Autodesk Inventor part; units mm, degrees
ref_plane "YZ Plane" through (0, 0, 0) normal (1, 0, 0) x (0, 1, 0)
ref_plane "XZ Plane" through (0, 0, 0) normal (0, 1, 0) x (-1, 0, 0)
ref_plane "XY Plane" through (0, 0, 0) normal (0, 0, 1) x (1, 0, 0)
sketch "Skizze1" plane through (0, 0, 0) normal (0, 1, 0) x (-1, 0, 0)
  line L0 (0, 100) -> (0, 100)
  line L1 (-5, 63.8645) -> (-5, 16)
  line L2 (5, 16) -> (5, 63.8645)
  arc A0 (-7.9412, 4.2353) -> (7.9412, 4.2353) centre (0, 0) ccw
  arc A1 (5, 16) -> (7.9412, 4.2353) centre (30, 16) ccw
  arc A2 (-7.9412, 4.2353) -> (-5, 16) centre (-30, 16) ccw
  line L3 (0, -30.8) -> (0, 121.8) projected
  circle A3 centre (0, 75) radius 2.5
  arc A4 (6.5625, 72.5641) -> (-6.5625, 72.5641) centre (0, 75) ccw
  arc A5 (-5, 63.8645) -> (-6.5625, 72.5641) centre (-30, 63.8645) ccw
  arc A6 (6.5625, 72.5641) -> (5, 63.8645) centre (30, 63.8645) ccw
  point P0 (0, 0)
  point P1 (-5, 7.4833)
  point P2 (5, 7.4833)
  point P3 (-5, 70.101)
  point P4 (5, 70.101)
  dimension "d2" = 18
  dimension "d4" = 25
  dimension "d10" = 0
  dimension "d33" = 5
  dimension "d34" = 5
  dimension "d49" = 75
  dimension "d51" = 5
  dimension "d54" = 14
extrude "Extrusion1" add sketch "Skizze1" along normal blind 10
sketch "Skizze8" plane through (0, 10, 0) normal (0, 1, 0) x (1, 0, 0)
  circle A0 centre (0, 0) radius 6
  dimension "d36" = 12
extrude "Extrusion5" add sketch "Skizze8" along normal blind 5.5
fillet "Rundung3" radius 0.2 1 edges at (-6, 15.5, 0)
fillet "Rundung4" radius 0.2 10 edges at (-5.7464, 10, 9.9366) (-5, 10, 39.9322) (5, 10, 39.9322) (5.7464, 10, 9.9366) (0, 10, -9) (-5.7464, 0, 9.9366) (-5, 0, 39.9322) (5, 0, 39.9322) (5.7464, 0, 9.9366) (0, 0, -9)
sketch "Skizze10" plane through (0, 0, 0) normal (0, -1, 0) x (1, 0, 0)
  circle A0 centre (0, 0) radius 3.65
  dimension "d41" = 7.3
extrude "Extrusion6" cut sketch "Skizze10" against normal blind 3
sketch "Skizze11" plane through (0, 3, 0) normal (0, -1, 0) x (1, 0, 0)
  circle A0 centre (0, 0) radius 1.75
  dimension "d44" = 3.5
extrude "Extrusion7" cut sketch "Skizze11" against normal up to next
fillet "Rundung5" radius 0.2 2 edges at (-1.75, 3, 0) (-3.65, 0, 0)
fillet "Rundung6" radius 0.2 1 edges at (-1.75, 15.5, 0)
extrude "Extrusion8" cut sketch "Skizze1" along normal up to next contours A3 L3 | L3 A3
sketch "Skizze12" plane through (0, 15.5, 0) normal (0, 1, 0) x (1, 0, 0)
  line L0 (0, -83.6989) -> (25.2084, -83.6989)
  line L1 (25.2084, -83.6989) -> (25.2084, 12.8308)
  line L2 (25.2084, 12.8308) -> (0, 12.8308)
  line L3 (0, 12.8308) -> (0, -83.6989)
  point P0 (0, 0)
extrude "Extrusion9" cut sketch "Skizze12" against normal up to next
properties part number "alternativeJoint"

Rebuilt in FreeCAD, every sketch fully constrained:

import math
import FreeCAD as App
import Part
import Sketcher


def edges_at(feature, points):
    """Names of the edges that pass closest to the given points."""
    edges = feature.Shape.Edges
    near = lambda p: min(range(len(edges)), key=lambda i: edges[i].distToShape(Part.Vertex(*p))[0])
    return sorted({f"Edge{near(p) + 1}" for p in points})

doc = App.newDocument("Part")
body = doc.addObject("PartDesign::Body", "Body")

# Sketch on XZ plane
sketch1 = body.newObject("Sketcher::SketchObject", "Sketch")
sketch1.AttachmentSupport = (doc.getObject("XZ_Plane"), [""])
sketch1.MapMode = "FlatFace"
sketch1.addGeometry(Part.ArcOfCircle(Part.Circle(App.Vector(30, 64, 0), App.Vector(0, 0, 1), 25), math.radians(160), math.radians(180)), False)
sketch1.addGeometry(Part.LineSegment(App.Vector(5, 64, 0), App.Vector(5, 16, 0)), False)
sketch1.addGeometry(Part.ArcOfCircle(Part.Circle(App.Vector(30, 16, 0), App.Vector(0, 0, 1), 25), math.radians(180), math.radians(208)), False)
sketch1.addGeometry(Part.ArcOfCircle(Part.Circle(App.Vector(0, 0, 0), App.Vector(0, 0, 1), 9), math.radians(152), math.radians(388)), False)
sketch1.addGeometry(Part.ArcOfCircle(Part.Circle(App.Vector(-30, 16, 0), App.Vector(0, 0, 1), 25), math.radians(-28), math.radians(0)), False)
sketch1.addGeometry(Part.LineSegment(App.Vector(-5, 16, 0), App.Vector(-5, 64, 0)), False)
sketch1.addGeometry(Part.ArcOfCircle(Part.Circle(App.Vector(-30, 64, 0), App.Vector(0, 0, 1), 25), math.radians(0), math.radians(20)), False)
sketch1.addGeometry(Part.ArcOfCircle(Part.Circle(App.Vector(0, 75, 0), App.Vector(0, 0, 1), 7), math.radians(-20), math.radians(200)), False)
sketch1.addConstraint(Sketcher.Constraint("Tangent", 0, 2, 1, 1))
sketch1.addConstraint(Sketcher.Constraint("Tangent", 1, 2, 2, 1))
sketch1.addConstraint(Sketcher.Constraint("Tangent", 2, 2, 3, 2))
sketch1.addConstraint(Sketcher.Constraint("Tangent", 3, 1, 4, 1))
sketch1.addConstraint(Sketcher.Constraint("Tangent", 4, 2, 5, 1))
sketch1.addConstraint(Sketcher.Constraint("Tangent", 5, 2, 6, 1))
sketch1.addConstraint(Sketcher.Constraint("Tangent", 6, 2, 7, 2))
sketch1.addConstraint(Sketcher.Constraint("Tangent", 7, 1, 0, 1))
sketch1.addConstraint(Sketcher.Constraint("Vertical", 1))
sketch1.addConstraint(Sketcher.Constraint("Vertical", 5))
sketch1.addConstraint(Sketcher.Constraint("Coincident", 3, 3, -1, 1))
sketch1.addConstraint(Sketcher.Constraint("Equal", 0, 2))
sketch1.addConstraint(Sketcher.Constraint("Equal", 2, 4))
sketch1.addConstraint(Sketcher.Constraint("Equal", 4, 6))
sketch1.addConstraint(Sketcher.Constraint("Symmetric", 0, 3, 6, 3, -2))
sketch1.addConstraint(Sketcher.Constraint("Radius", 0, 25.0))
sketch1.addConstraint(Sketcher.Constraint("Radius", 3, 9.0))
sketch1.addConstraint(Sketcher.Constraint("Radius", 7, 7.0))
sketch1.addConstraint(Sketcher.Constraint("DistanceY", -1, 1, 7, 3, 75.0))
sketch1.addConstraint(Sketcher.Constraint("DistanceX", -1, 1, 0, 2, 5.0))
pad1 = body.newObject("PartDesign::Pad", "Pad")
pad1.Profile = sketch1
pad1.Length = 10
pad1.Reversed = True

# Sketch on XZ plane
sketch2 = body.newObject("Sketcher::SketchObject", "Sketch001")
sketch2.AttachmentSupport = (doc.getObject("XZ_Plane"), [""])
sketch2.MapMode = "FlatFace"
sketch2.AttachmentOffset = App.Placement(App.Vector(0, 0, -10), App.Rotation())
sketch2.addGeometry(Part.Circle(App.Vector(0, 0, 0), App.Vector(0, 0, 1), 6), False)
sketch2.addConstraint(Sketcher.Constraint("Coincident", 0, 3, -1, 1))
sketch2.addConstraint(Sketcher.Constraint("Diameter", 0, 12.0))
pad2 = body.newObject("PartDesign::Pad", "Pad001")
pad2.Profile = sketch2
pad2.Length = 5.5
pad2.Reversed = True
doc.recompute()

fillet = body.newObject("PartDesign::Fillet", "Fillet")
fillet.Base = (pad2, edges_at(pad2, [(-6, 15.5, 0)]))
fillet.Radius = 0.2
doc.recompute()

fillet2 = body.newObject("PartDesign::Fillet", "Fillet001")
fillet2.Base = (fillet, edges_at(fillet, [
    (-5.746, 10, 9.937),
    (-5, 10, 39.932),
    (5, 10, 39.932),
    (5.746, 10, 9.937),
    (0, 10, -9),
    (-5.746, 0, 9.937),
    (-5, 0, 39.932),
    (5, 0, 39.932),
    (5.746, 0, 9.937),
    (0, 0, -9),
]))
fillet2.Radius = 0.2

# Sketch on XZ plane
sketch3 = body.newObject("Sketcher::SketchObject", "Sketch002")
sketch3.AttachmentSupport = (doc.getObject("XZ_Plane"), [""])
sketch3.MapMode = "FlatFace"
sketch3.addGeometry(Part.Circle(App.Vector(0, 0, 0), App.Vector(0, 0, 1), 3.6), False)
sketch3.addConstraint(Sketcher.Constraint("Coincident", 0, 3, -1, 1))
sketch3.addConstraint(Sketcher.Constraint("Diameter", 0, 7.3))
pocket1 = body.newObject("PartDesign::Pocket", "Pocket")
pocket1.Profile = sketch3
pocket1.Length = 3

# Sketch on XZ plane
sketch4 = body.newObject("Sketcher::SketchObject", "Sketch003")
sketch4.AttachmentSupport = (doc.getObject("XZ_Plane"), [""])
sketch4.MapMode = "FlatFace"
sketch4.AttachmentOffset = App.Placement(App.Vector(0, 0, -3), App.Rotation())
sketch4.addGeometry(Part.Circle(App.Vector(0, 0, 0), App.Vector(0, 0, 1), 1.8), False)
sketch4.addConstraint(Sketcher.Constraint("Coincident", 0, 3, -1, 1))
sketch4.addConstraint(Sketcher.Constraint("Diameter", 0, 3.5))
pocket2 = body.newObject("PartDesign::Pocket", "Pocket001")
pocket2.Profile = sketch4
pocket2.Type = "UpToFirst"
doc.recompute()

fillet3 = body.newObject("PartDesign::Fillet", "Fillet002")
fillet3.Base = (pocket2, edges_at(pocket2, [(-1.75, 3, 0), (-3.65, 0, 0)]))
fillet3.Radius = 0.2
doc.recompute()

fillet4 = body.newObject("PartDesign::Fillet", "Fillet003")
fillet4.Base = (fillet3, edges_at(fillet3, [(-1.75, 15.5, 0)]))
fillet4.Radius = 0.2

# Sketch on XZ plane
sketch5 = body.newObject("Sketcher::SketchObject", "Sketch004")
sketch5.AttachmentSupport = (doc.getObject("XZ_Plane"), [""])
sketch5.MapMode = "FlatFace"
sketch5.addGeometry(Part.Circle(App.Vector(0, 75, 0), App.Vector(0, 0, 1), 2.5), False)
sketch5.addConstraint(Sketcher.Constraint("PointOnObject", 0, 3, -2))
sketch5.addConstraint(Sketcher.Constraint("Diameter", 0, 5.0))
sketch5.addConstraint(Sketcher.Constraint("DistanceY", -1, 1, 0, 3, 75.0))
pocket3 = body.newObject("PartDesign::Pocket", "Pocket002")
pocket3.Profile = sketch5
pocket3.Type = "UpToFirst"

# Sketch on XZ plane
sketch6 = body.newObject("Sketcher::SketchObject", "Sketch005")
sketch6.AttachmentSupport = (doc.getObject("XZ_Plane"), [""])
sketch6.MapMode = "FlatFace"
sketch6.AttachmentOffset = App.Placement(App.Vector(0, 0, -15.5), App.Rotation())
sketch6.addGeometry(Part.LineSegment(App.Vector(0, -13, 0), App.Vector(0, 84, 0)), False)
sketch6.addGeometry(Part.LineSegment(App.Vector(0, 84, 0), App.Vector(25, 84, 0)), False)
sketch6.addGeometry(Part.LineSegment(App.Vector(25, 84, 0), App.Vector(25, -13, 0)), False)
sketch6.addGeometry(Part.LineSegment(App.Vector(25, -13, 0), App.Vector(0, -13, 0)), False)
sketch6.addConstraint(Sketcher.Constraint("Coincident", 0, 2, 1, 1))
sketch6.addConstraint(Sketcher.Constraint("Coincident", 1, 2, 2, 1))
sketch6.addConstraint(Sketcher.Constraint("Coincident", 2, 2, 3, 1))
sketch6.addConstraint(Sketcher.Constraint("Coincident", 3, 2, 0, 1))
sketch6.addConstraint(Sketcher.Constraint("Vertical", 0))
sketch6.addConstraint(Sketcher.Constraint("Horizontal", 1))
sketch6.addConstraint(Sketcher.Constraint("Vertical", 2))
sketch6.addConstraint(Sketcher.Constraint("Horizontal", 3))
sketch6.addConstraint(Sketcher.Constraint("PointOnObject", 0, 2, -2))
sketch6.addConstraint(Sketcher.Constraint("DistanceX", 1, 1, 1, 2, 25.2084))
sketch6.addConstraint(Sketcher.Constraint("DistanceY", 0, 1, 0, 2, 96.5297))
sketch6.addConstraint(Sketcher.Constraint("DistanceY", -1, 1, 0, 2, 83.699))
pocket4 = body.newObject("PartDesign::Pocket", "Pocket003")
pocket4.Profile = sketch6
pocket4.Length = 15.5
pocket4.Reversed = True

doc.recompute()
